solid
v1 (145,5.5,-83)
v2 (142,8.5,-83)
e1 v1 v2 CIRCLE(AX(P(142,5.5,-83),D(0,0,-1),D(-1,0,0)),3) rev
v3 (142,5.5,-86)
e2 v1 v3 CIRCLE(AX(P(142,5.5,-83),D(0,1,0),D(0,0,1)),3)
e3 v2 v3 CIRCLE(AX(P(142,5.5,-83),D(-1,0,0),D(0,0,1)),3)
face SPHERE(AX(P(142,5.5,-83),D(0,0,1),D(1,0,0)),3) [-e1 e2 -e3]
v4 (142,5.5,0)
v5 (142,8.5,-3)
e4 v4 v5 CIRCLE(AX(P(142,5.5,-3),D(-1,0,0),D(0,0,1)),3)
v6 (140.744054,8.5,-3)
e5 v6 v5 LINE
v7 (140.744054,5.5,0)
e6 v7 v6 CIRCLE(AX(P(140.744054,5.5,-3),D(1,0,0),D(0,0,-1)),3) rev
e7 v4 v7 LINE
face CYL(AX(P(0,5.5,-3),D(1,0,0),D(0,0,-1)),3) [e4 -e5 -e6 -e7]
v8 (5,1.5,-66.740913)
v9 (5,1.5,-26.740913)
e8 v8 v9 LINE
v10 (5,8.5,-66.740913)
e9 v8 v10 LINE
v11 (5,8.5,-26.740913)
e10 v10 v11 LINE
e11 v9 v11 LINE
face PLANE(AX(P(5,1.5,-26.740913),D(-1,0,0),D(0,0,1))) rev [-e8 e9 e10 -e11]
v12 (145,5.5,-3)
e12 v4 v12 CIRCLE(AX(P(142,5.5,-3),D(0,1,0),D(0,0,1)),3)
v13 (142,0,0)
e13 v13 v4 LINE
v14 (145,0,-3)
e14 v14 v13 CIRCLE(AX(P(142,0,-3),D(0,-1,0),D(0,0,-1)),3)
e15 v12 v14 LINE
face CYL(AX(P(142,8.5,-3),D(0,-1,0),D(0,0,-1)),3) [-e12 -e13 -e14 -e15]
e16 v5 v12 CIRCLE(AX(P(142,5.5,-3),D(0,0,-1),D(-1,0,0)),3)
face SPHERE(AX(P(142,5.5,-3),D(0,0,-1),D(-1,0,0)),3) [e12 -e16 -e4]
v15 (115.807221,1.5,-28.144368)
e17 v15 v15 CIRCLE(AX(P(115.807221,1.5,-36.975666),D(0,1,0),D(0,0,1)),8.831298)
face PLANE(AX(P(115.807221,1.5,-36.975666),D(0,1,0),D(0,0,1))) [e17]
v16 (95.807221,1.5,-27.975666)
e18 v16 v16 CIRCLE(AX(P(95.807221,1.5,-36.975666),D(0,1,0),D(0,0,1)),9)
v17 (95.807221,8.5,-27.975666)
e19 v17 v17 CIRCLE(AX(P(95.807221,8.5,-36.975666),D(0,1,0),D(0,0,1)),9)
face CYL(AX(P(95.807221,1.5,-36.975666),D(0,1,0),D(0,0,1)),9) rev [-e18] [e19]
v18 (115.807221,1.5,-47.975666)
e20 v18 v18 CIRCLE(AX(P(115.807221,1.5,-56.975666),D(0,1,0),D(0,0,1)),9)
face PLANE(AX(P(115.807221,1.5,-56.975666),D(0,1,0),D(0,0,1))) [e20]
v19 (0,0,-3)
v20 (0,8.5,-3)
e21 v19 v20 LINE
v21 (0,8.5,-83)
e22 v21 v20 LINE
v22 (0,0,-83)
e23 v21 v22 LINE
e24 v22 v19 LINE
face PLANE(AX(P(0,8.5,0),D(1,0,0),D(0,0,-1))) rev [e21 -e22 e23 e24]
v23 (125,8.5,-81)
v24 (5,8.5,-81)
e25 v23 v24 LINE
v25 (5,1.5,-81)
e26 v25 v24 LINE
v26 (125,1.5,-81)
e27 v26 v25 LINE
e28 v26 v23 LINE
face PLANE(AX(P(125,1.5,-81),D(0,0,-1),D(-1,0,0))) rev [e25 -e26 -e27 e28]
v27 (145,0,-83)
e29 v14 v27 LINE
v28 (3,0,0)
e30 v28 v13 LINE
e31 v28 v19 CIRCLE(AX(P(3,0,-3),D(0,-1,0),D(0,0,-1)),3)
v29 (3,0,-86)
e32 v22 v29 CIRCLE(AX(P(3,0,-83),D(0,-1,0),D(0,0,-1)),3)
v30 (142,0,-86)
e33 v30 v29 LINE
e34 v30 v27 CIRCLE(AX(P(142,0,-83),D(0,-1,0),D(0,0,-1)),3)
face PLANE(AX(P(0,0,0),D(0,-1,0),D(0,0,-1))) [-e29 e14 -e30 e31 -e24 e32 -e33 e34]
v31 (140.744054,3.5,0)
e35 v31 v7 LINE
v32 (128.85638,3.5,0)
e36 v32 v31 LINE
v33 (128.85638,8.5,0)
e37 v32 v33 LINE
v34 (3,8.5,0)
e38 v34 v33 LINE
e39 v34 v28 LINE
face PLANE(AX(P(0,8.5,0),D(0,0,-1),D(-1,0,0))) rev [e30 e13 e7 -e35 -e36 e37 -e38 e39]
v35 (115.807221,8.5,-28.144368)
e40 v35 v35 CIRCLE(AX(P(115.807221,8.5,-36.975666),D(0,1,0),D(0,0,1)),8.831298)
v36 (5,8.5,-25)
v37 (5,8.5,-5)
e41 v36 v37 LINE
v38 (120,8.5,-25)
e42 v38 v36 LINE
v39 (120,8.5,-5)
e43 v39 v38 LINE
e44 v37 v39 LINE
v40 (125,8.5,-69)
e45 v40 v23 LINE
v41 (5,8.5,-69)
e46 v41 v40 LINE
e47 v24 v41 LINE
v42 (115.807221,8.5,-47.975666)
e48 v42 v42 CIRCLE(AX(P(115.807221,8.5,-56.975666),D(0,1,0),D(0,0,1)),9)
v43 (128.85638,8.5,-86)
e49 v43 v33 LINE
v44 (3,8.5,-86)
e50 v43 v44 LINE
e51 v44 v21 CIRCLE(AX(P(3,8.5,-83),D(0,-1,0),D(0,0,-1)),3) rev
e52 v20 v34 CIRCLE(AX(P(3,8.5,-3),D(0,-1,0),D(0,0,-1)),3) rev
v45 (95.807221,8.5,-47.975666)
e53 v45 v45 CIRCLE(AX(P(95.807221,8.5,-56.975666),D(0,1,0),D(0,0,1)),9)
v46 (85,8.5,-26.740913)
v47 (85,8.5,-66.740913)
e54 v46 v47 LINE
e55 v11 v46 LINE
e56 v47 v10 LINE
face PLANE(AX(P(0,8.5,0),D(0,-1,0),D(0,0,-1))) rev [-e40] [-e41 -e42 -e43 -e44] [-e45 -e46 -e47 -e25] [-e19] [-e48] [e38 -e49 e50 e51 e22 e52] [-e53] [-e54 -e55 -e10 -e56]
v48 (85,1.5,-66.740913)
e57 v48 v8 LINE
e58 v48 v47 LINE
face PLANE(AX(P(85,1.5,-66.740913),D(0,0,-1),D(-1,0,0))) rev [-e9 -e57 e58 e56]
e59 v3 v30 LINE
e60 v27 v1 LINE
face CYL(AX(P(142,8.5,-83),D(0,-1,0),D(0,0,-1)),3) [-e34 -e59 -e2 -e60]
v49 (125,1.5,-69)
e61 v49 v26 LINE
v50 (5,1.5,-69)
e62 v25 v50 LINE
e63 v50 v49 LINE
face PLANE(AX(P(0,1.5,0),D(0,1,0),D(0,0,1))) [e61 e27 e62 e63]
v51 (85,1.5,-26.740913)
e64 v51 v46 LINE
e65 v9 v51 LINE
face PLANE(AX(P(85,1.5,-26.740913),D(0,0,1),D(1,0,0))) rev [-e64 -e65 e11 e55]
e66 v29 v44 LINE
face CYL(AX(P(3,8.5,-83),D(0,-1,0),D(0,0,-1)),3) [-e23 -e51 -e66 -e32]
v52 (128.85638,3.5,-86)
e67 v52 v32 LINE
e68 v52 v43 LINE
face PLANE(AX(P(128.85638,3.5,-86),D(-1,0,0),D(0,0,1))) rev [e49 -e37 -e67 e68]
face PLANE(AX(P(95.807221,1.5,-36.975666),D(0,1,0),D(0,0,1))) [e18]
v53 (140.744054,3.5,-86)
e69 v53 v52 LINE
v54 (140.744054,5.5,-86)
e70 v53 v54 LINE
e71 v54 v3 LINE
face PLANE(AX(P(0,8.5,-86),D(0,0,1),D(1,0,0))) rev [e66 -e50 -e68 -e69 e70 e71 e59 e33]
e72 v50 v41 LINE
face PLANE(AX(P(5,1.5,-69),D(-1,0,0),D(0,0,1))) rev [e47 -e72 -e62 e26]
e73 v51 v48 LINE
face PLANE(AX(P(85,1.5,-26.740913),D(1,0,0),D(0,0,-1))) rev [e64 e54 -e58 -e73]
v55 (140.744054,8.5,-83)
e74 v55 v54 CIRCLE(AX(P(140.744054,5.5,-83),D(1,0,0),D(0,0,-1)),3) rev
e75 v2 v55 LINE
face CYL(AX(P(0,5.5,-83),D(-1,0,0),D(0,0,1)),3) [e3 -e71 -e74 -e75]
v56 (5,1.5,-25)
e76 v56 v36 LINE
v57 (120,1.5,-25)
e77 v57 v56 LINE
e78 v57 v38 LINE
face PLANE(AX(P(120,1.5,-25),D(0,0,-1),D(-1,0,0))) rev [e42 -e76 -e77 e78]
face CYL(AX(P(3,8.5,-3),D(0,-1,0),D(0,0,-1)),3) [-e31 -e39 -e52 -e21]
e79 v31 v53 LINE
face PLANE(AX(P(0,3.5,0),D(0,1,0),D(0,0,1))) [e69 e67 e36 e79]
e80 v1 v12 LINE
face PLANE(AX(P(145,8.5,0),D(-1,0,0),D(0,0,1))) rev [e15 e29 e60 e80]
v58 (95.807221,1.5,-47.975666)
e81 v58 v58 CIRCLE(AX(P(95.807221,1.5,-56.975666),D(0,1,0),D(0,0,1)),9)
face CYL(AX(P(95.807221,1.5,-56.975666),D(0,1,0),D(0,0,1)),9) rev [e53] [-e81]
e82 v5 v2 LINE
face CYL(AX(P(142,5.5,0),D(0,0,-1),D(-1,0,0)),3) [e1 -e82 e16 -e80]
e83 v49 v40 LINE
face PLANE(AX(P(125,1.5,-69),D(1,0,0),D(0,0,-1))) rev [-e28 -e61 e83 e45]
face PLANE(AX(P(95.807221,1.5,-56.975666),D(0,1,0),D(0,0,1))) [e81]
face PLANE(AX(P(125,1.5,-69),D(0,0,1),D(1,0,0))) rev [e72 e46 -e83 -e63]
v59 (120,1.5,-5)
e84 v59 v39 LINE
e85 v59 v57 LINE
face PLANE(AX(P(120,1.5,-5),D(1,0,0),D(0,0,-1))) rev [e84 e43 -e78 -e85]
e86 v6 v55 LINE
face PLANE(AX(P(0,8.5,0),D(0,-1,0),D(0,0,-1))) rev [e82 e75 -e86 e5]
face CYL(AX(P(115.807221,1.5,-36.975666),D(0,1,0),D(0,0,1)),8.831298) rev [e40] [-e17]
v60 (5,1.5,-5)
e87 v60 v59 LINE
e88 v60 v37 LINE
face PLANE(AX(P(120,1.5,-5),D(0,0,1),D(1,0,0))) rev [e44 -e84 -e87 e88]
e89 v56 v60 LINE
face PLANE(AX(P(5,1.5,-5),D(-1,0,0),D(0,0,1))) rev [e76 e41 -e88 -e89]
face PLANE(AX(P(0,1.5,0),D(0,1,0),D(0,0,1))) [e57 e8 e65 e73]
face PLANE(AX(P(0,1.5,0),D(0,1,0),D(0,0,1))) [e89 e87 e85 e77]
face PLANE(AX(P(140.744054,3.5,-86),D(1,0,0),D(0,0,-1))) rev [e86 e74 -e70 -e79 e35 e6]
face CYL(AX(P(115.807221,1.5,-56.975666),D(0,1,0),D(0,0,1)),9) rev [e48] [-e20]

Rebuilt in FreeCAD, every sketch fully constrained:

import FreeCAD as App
import Part
import Sketcher


def edges_at(feature, points):
    """Names of the edges that pass closest to the given points."""
    edges = feature.Shape.Edges
    near = lambda p: min(range(len(edges)), key=lambda i: edges[i].distToShape(Part.Vertex(*p))[0])
    return sorted({f"Edge{near(p) + 1}" for p in points})


def add_polygon(sketch, points):
    """Adds a closed chain of lines whose ends are joined by coincident constraints."""
    first, n = sketch.GeometryCount, len(points)
    for a, b in zip(points, points[1:] + points[:1]):
        sketch.addGeometry(Part.LineSegment(App.Vector(*a, 0), App.Vector(*b, 0)), False)
    for i in range(n):
        sketch.addConstraint(Sketcher.Constraint("Coincident", first + i, 2, first + (i + 1) % n, 1))

doc = App.newDocument("Part")
body = doc.addObject("PartDesign::Body", "Body")

sketch1 = doc.addObject("Sketcher::SketchObject", "Sketch")
body.addObject(sketch1)
sketch1.AttachmentSupport = (doc.XZ_Plane, [""])
sketch1.MapMode = "FlatFace"
add_polygon(sketch1, [(0, -86), (0, 0), (145, 0), (145, -86)])
sketch1.addConstraint(Sketcher.Constraint("Vertical", 0))
sketch1.addConstraint(Sketcher.Constraint("Horizontal", 1))
sketch1.addConstraint(Sketcher.Constraint("Vertical", 2))
sketch1.addConstraint(Sketcher.Constraint("Horizontal", 3))
sketch1.addConstraint(Sketcher.Constraint("Coincident", 0, 2, -1, 1))
sketch1.addConstraint(Sketcher.Constraint("DistanceX", 1, 1, 1, 2, 145.0))
sketch1.addConstraint(Sketcher.Constraint("DistanceY", 0, 1, 0, 2, 86.0))
pad1 = doc.addObject("PartDesign::Pad", "Pad")
body.addObject(pad1)
pad1.Profile = sketch1
pad1.Length = 8.5
pad1.Reversed = True

sketch2 = doc.addObject("Sketcher::SketchObject", "Sketch001")
body.addObject(sketch2)
sketch2.AttachmentSupport = (doc.XZ_Plane, [""])
sketch2.MapMode = "FlatFace"
sketch2.AttachmentOffset = App.Placement(App.Vector(0, 0, -8.5), App.Rotation())
add_polygon(sketch2, [(5, -66.740913), (5, -26.740913), (85, -26.740913), (85, -66.740913)])
sketch2.addConstraint(Sketcher.Constraint("Vertical", 0))
sketch2.addConstraint(Sketcher.Constraint("Horizontal", 1))
sketch2.addConstraint(Sketcher.Constraint("Vertical", 2))
sketch2.addConstraint(Sketcher.Constraint("Horizontal", 3))
sketch2.addConstraint(Sketcher.Constraint("DistanceX", 1, 1, 1, 2, 80.0))
sketch2.addConstraint(Sketcher.Constraint("DistanceY", 0, 1, 0, 2, 40.0))
sketch2.addConstraint(Sketcher.Constraint("DistanceX", -1, 1, 0, 2, 5.0))
sketch2.addConstraint(Sketcher.Constraint("DistanceY", 0, 2, -1, 1, 26.740913))
pocket1 = doc.addObject("PartDesign::Pocket", "Pocket")
body.addObject(pocket1)
pocket1.Profile = sketch2
pocket1.Length = 7
pocket1.Reversed = True

sketch3 = doc.addObject("Sketcher::SketchObject", "Sketch002")
body.addObject(sketch3)
sketch3.AttachmentSupport = (doc.XZ_Plane, [""])
sketch3.MapMode = "FlatFace"
sketch3.AttachmentOffset = App.Placement(App.Vector(0, 0, -8.5), App.Rotation())
add_polygon(sketch3, [(5, -25), (5, -5), (120, -5), (120, -25)])
sketch3.addConstraint(Sketcher.Constraint("Vertical", 0))
sketch3.addConstraint(Sketcher.Constraint("Horizontal", 1))
sketch3.addConstraint(Sketcher.Constraint("Vertical", 2))
sketch3.addConstraint(Sketcher.Constraint("Horizontal", 3))
sketch3.addConstraint(Sketcher.Constraint("DistanceX", 1, 1, 1, 2, 115.0))
sketch3.addConstraint(Sketcher.Constraint("DistanceY", 0, 1, 0, 2, 20.0))
sketch3.addConstraint(Sketcher.Constraint("DistanceX", -1, 1, 0, 2, 5.0))
sketch3.addConstraint(Sketcher.Constraint("DistanceY", 0, 2, -1, 1, 5.0))
pocket2 = doc.addObject("PartDesign::Pocket", "Pocket001")
body.addObject(pocket2)
pocket2.Profile = sketch3
pocket2.Length = 7
pocket2.Reversed = True

sketch4 = doc.addObject("Sketcher::SketchObject", "Sketch003")
body.addObject(sketch4)
sketch4.AttachmentSupport = (doc.XZ_Plane, [""])
sketch4.MapMode = "FlatFace"
sketch4.AttachmentOffset = App.Placement(App.Vector(0, 0, -8.5), App.Rotation())
add_polygon(sketch4, [(5, -81), (5, -69), (125, -69), (125, -81)])
sketch4.addConstraint(Sketcher.Constraint("Vertical", 0))
sketch4.addConstraint(Sketcher.Constraint("Horizontal", 1))
sketch4.addConstraint(Sketcher.Constraint("Vertical", 2))
sketch4.addConstraint(Sketcher.Constraint("Horizontal", 3))
sketch4.addConstraint(Sketcher.Constraint("DistanceX", 1, 1, 1, 2, 120.0))
sketch4.addConstraint(Sketcher.Constraint("DistanceY", 0, 1, 0, 2, 12.0))
sketch4.addConstraint(Sketcher.Constraint("DistanceX", -1, 1, 0, 2, 5.0))
sketch4.addConstraint(Sketcher.Constraint("DistanceY", 0, 2, -1, 1, 69.0))
pocket3 = doc.addObject("PartDesign::Pocket", "Pocket002")
body.addObject(pocket3)
pocket3.Profile = sketch4
pocket3.Length = 7
pocket3.Reversed = True

sketch5 = doc.addObject("Sketcher::SketchObject", "Sketch004")
body.addObject(sketch5)
sketch5.AttachmentSupport = (doc.XZ_Plane, [""])
sketch5.MapMode = "FlatFace"
sketch5.AttachmentOffset = App.Placement(App.Vector(0, 0, -8.5), App.Rotation())
sketch5.addGeometry(Part.Circle(App.Vector(95.807221, -36.975666, 0), App.Vector(0, 0, 1), 9), False)
sketch5.addGeometry(Part.Circle(App.Vector(115.807221, -36.975666, 0), App.Vector(0, 0, 1), 8.831298), False)
sketch5.addGeometry(Part.Circle(App.Vector(95.807221, -56.975666, 0), App.Vector(0, 0, 1), 9), False)
sketch5.addGeometry(Part.Circle(App.Vector(115.807221, -56.975666, 0), App.Vector(0, 0, 1), 9), False)
sketch5.addConstraint(Sketcher.Constraint("Equal", 0, 2))
sketch5.addConstraint(Sketcher.Constraint("Equal", 2, 3))
sketch5.addConstraint(Sketcher.Constraint("Horizontal", 0, 3, 1, 3))
sketch5.addConstraint(Sketcher.Constraint("Horizontal", 2, 3, 3, 3))
sketch5.addConstraint(Sketcher.Constraint("Vertical", 0, 3, 2, 3))
sketch5.addConstraint(Sketcher.Constraint("Vertical", 1, 3, 3, 3))
sketch5.addConstraint(Sketcher.Constraint("Diameter", 0, 18.0))
sketch5.addConstraint(Sketcher.Constraint("DistanceX", 0, 3, 1, 3, 20.0))
sketch5.addConstraint(Sketcher.Constraint("DistanceY", 2, 3, 0, 3, 20.0))
sketch5.addConstraint(Sketcher.Constraint("Diameter", 1, 17.662597))
sketch5.addConstraint(Sketcher.Constraint("DistanceX", -1, 1, 0, 3, 95.807221))
sketch5.addConstraint(Sketcher.Constraint("DistanceY", 0, 3, -1, 1, 36.975666))
pocket4 = doc.addObject("PartDesign::Pocket", "Pocket003")
body.addObject(pocket4)
pocket4.Profile = sketch5
pocket4.Length = 7
pocket4.Reversed = True

sketch6 = doc.addObject("Sketcher::SketchObject", "Sketch005")
body.addObject(sketch6)
sketch6.AttachmentSupport = (doc.XZ_Plane, [""])
sketch6.MapMode = "FlatFace"
sketch6.AttachmentOffset = App.Placement(App.Vector(0, 0, -8.5), App.Rotation())
add_polygon(sketch6, [(128.85638, -86), (128.85638, 0), (140.744054, 0), (140.744054, -86)])
sketch6.addConstraint(Sketcher.Constraint("Vertical", 0))
sketch6.addConstraint(Sketcher.Constraint("Horizontal", 1))
sketch6.addConstraint(Sketcher.Constraint("Vertical", 2))
sketch6.addConstraint(Sketcher.Constraint("Horizontal", 3))
sketch6.addConstraint(Sketcher.Constraint("PointOnObject", 0, 2, -1))
sketch6.addConstraint(Sketcher.Constraint("DistanceY", 0, 1, 0, 2, 86.0))
sketch6.addConstraint(Sketcher.Constraint("DistanceX", 1, 1, 1, 2, 11.887674))
sketch6.addConstraint(Sketcher.Constraint("DistanceX", -1, 1, 0, 2, 128.85638))
pocket5 = doc.addObject("PartDesign::Pocket", "Pocket004")
body.addObject(pocket5)
pocket5.Profile = sketch6
pocket5.Length = 5
pocket5.Reversed = True
doc.recompute()

fillet = doc.addObject("PartDesign::Fillet", "Fillet")
body.addObject(fillet)
fillet.Base = (pocket5, edges_at(pocket5, [(145, 8.5, -43)]))
fillet.Radius = 3
doc.recompute()

fillet2 = doc.addObject("PartDesign::Fillet", "Fillet001")
body.addObject(fillet2)
fillet2.Base = (fillet, edges_at(fillet, [(145, 2.75, 0), (144.121, 7.621, 0), (141.372, 8.5, 0)]))
fillet2.Radius = 3
doc.recompute()

fillet3 = doc.addObject("PartDesign::Fillet", "Fillet002")
body.addObject(fillet3)
fillet3.Base = (fillet2, edges_at(fillet2, [(141.372, 8.5, -86), (145, 2.75, -86), (144.121, 7.621, -86)]))
fillet3.Radius = 3
doc.recompute()

fillet4 = doc.addObject("PartDesign::Fillet", "Fillet003")
body.addObject(fillet4)
fillet4.Base = (fillet3, edges_at(fillet3, [(0, 4.25, 0)]))
fillet4.Radius = 3
doc.recompute()

fillet5 = doc.addObject("PartDesign::Fillet", "Fillet004")
body.addObject(fillet5)
fillet5.Base = (fillet4, edges_at(fillet4, [(0, 4.25, -86)]))
fillet5.Radius = 3

doc.recompute()
